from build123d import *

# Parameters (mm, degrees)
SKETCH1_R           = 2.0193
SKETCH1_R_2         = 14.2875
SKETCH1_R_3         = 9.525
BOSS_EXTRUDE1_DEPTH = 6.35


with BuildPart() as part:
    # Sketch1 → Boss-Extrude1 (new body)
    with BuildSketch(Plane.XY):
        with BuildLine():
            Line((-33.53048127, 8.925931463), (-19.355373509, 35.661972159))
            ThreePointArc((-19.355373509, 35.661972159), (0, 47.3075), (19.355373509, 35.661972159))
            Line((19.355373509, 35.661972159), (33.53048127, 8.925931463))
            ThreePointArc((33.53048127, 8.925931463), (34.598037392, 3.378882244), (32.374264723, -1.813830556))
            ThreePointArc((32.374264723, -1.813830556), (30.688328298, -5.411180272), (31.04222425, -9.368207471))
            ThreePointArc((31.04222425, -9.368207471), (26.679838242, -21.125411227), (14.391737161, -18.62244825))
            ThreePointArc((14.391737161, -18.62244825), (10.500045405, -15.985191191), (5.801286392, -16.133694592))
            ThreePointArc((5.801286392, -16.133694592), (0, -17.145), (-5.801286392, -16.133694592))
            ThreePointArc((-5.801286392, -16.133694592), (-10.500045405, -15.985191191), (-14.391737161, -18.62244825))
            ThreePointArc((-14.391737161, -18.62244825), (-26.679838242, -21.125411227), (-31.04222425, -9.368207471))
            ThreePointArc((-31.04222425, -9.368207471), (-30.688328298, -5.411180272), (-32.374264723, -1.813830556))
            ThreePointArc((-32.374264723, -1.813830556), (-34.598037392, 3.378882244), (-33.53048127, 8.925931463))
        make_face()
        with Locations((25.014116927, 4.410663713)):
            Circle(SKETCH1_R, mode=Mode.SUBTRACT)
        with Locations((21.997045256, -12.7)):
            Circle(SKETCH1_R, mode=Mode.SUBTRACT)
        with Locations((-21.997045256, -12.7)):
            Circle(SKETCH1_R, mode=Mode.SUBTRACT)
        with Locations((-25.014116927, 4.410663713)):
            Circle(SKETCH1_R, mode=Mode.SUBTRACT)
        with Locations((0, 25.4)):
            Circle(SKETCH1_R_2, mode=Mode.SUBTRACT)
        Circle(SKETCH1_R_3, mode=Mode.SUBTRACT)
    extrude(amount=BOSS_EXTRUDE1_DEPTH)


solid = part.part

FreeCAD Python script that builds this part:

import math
import FreeCAD as App
import Part
import Sketcher
Q = App.Units.Quantity

doc = App.newDocument("Part")
body = doc.addObject("PartDesign::Body", "Body")

# Sketch on XY plane
sketch1 = body.newObject("Sketcher::SketchObject", "Sketch")
sketch1.AttachmentSupport = (doc.getObject("XY_Plane"), [""])
sketch1.MapMode = "FlatFace"
sketch1.addGeometry([
    Part.LineSegment(App.Vector(-19.355374, 35.661972, 0), App.Vector(-33.530481, 8.925931, 0)),  # 0
    Part.ArcOfCircle(Part.Circle(App.Vector(-25.014117, 4.410664, 0), App.Vector(0, 0, 1), 9.6393), math.radians(152.068035), math.radians(220.22128)),  # 1
    Part.ArcOfCircle(Part.Circle(App.Vector(-38.192563, -6.734379, 0), App.Vector(0, 0, 1), 7.62), math.radians(-20.22128), math.radians(40.22128)),  # 2
    Part.ArcOfCircle(Part.Circle(App.Vector(-21.997045, -12.7, 0), App.Vector(0, 0, 1), 9.6393), math.radians(159.77872), math.radians(322.091194)),  # 3
    Part.ArcOfCircle(Part.Circle(App.Vector(-8.379636, -23.304226, 0), App.Vector(0, 0, 1), 7.62), math.radians(70.222642), math.radians(142.091194)),  # 4
    Part.ArcOfCircle(Part.Circle(App.Vector(0, 0, 0), App.Vector(0, 0, 1), 17.145), math.radians(-109.777358), math.radians(-70.222642)),  # 5
    Part.ArcOfCircle(Part.Circle(App.Vector(8.379636, -23.304226, 0), App.Vector(0, 0, 1), 7.62), math.radians(37.908806), math.radians(109.777358)),  # 6
    Part.ArcOfCircle(Part.Circle(App.Vector(21.997045, -12.7, 0), App.Vector(0, 0, 1), 9.6393), math.radians(-142.091194), math.radians(20.22128)),  # 7
    Part.ArcOfCircle(Part.Circle(App.Vector(38.192563, -6.734379, 0), App.Vector(0, 0, 1), 7.62), math.radians(139.77872), math.radians(200.22128)),  # 8
    Part.ArcOfCircle(Part.Circle(App.Vector(25.014117, 4.410664, 0), App.Vector(0, 0, 1), 9.6393), math.radians(-40.22128), math.radians(27.931965)),  # 9
    Part.LineSegment(App.Vector(33.530481, 8.925931, 0), App.Vector(19.355374, 35.661972, 0)),  # 10
    Part.ArcOfCircle(Part.Circle(App.Vector(0, 25.4, 0), App.Vector(0, 0, 1), 21.9075), math.radians(27.931965), math.radians(152.068035)),  # 11
    Part.Circle(App.Vector(21.997045, -12.7, 0), App.Vector(0, 0, 1), 2.0193),  # 12
    Part.Circle(App.Vector(25.014117, 4.410664, 0), App.Vector(0, 0, 1), 2.0193),  # 13
    Part.Circle(App.Vector(0, 0, 0), App.Vector(0, 0, 1), 9.525),  # 14
    Part.Circle(App.Vector(-21.997045, -12.7, 0), App.Vector(0, 0, 1), 2.0193),  # 15
    Part.Circle(App.Vector(-25.014117, 4.410664, 0), App.Vector(0, 0, 1), 2.0193),  # 16
    Part.Circle(App.Vector(0, 25.4, 0), App.Vector(0, 0, 1), 14.2875),  # 17
], False)
sketch1.addConstraint([
    Sketcher.Constraint("Tangent", 0, 2, 1, 1),
    Sketcher.Constraint("Tangent", 1, 2, 2, 2),
    Sketcher.Constraint("Tangent", 2, 1, 3, 1),
    Sketcher.Constraint("Tangent", 3, 2, 4, 2),
    Sketcher.Constraint("Tangent", 4, 1, 5, 1),
    Sketcher.Constraint("Tangent", 5, 2, 6, 2),
    Sketcher.Constraint("Tangent", 6, 1, 7, 1),
    Sketcher.Constraint("Tangent", 7, 2, 8, 2),
    Sketcher.Constraint("Tangent", 8, 1, 9, 1),
    Sketcher.Constraint("Tangent", 9, 2, 10, 1),
    Sketcher.Constraint("Tangent", 10, 2, 11, 1),
    Sketcher.Constraint("Tangent", 11, 2, 0, 1),
    Sketcher.Constraint("Coincident", 5, 3, -1, 1),
    Sketcher.Constraint("Coincident", 14, 3, -1, 1),
    Sketcher.Constraint("Coincident", 12, 3, 7, 3),
    Sketcher.Constraint("Coincident", 13, 3, 9, 3),
    Sketcher.Constraint("Coincident", 15, 3, 3, 3),
    Sketcher.Constraint("Coincident", 16, 3, 1, 3),
    Sketcher.Constraint("Coincident", 17, 3, 11, 3),
    Sketcher.Constraint("Equal", 1, 3),
    Sketcher.Constraint("Equal", 2, 4),
    Sketcher.Constraint("Equal", 4, 6),
    Sketcher.Constraint("Equal", 3, 7),
    Sketcher.Constraint("Equal", 6, 8),
    Sketcher.Constraint("Equal", 7, 9),
    Sketcher.Constraint("Equal", 12, 13),
    Sketcher.Constraint("Equal", 13, 15),
    Sketcher.Constraint("Equal", 15, 16),
    Sketcher.Constraint("Symmetric", 3, 3, 7, 3, -2),
    Sketcher.Constraint("Symmetric", 1, 3, 9, 3, -2),
    Sketcher.Constraint("PointOnObject", 11, 3, -2),
    Sketcher.Constraint("Radius", 2, Q("0.3 in")),
    Sketcher.Constraint("Diameter", 14, Q("0.75 in")),
    Sketcher.Constraint("Diameter", 12, Q("0.159 in")),
    Sketcher.Constraint("Diameter", 17, Q("1.125 in")),
    Sketcher.Constraint("DistanceY", -1, 1, 11, 3, Q("1 in")),
    Sketcher.Constraint("Radius", 5, Q("0.675 in")),
    Sketcher.Constraint("DistanceY", 3, 3, -1, 1, Q("0.5 in")),
    Sketcher.Constraint("Radius", 1, Q("0.3795 in")),
    Sketcher.Constraint("Radius", 11, Q("0.8625 in")),
    Sketcher.Constraint("DistanceY", 9, 2, 10, 2, Q("1.0526 in")),
    Sketcher.Constraint("DistanceX", 2, 3, 6, 3, Q("46.572199 mm")),
    Sketcher.Constraint("DistanceX", 2, 3, 1, 2, Q("5.818299 mm")),
])
pad1 = body.newObject("PartDesign::Pad", "Pad")
pad1.Profile = sketch1
pad1.Length = Q("0.25 in")

doc.recompute()
